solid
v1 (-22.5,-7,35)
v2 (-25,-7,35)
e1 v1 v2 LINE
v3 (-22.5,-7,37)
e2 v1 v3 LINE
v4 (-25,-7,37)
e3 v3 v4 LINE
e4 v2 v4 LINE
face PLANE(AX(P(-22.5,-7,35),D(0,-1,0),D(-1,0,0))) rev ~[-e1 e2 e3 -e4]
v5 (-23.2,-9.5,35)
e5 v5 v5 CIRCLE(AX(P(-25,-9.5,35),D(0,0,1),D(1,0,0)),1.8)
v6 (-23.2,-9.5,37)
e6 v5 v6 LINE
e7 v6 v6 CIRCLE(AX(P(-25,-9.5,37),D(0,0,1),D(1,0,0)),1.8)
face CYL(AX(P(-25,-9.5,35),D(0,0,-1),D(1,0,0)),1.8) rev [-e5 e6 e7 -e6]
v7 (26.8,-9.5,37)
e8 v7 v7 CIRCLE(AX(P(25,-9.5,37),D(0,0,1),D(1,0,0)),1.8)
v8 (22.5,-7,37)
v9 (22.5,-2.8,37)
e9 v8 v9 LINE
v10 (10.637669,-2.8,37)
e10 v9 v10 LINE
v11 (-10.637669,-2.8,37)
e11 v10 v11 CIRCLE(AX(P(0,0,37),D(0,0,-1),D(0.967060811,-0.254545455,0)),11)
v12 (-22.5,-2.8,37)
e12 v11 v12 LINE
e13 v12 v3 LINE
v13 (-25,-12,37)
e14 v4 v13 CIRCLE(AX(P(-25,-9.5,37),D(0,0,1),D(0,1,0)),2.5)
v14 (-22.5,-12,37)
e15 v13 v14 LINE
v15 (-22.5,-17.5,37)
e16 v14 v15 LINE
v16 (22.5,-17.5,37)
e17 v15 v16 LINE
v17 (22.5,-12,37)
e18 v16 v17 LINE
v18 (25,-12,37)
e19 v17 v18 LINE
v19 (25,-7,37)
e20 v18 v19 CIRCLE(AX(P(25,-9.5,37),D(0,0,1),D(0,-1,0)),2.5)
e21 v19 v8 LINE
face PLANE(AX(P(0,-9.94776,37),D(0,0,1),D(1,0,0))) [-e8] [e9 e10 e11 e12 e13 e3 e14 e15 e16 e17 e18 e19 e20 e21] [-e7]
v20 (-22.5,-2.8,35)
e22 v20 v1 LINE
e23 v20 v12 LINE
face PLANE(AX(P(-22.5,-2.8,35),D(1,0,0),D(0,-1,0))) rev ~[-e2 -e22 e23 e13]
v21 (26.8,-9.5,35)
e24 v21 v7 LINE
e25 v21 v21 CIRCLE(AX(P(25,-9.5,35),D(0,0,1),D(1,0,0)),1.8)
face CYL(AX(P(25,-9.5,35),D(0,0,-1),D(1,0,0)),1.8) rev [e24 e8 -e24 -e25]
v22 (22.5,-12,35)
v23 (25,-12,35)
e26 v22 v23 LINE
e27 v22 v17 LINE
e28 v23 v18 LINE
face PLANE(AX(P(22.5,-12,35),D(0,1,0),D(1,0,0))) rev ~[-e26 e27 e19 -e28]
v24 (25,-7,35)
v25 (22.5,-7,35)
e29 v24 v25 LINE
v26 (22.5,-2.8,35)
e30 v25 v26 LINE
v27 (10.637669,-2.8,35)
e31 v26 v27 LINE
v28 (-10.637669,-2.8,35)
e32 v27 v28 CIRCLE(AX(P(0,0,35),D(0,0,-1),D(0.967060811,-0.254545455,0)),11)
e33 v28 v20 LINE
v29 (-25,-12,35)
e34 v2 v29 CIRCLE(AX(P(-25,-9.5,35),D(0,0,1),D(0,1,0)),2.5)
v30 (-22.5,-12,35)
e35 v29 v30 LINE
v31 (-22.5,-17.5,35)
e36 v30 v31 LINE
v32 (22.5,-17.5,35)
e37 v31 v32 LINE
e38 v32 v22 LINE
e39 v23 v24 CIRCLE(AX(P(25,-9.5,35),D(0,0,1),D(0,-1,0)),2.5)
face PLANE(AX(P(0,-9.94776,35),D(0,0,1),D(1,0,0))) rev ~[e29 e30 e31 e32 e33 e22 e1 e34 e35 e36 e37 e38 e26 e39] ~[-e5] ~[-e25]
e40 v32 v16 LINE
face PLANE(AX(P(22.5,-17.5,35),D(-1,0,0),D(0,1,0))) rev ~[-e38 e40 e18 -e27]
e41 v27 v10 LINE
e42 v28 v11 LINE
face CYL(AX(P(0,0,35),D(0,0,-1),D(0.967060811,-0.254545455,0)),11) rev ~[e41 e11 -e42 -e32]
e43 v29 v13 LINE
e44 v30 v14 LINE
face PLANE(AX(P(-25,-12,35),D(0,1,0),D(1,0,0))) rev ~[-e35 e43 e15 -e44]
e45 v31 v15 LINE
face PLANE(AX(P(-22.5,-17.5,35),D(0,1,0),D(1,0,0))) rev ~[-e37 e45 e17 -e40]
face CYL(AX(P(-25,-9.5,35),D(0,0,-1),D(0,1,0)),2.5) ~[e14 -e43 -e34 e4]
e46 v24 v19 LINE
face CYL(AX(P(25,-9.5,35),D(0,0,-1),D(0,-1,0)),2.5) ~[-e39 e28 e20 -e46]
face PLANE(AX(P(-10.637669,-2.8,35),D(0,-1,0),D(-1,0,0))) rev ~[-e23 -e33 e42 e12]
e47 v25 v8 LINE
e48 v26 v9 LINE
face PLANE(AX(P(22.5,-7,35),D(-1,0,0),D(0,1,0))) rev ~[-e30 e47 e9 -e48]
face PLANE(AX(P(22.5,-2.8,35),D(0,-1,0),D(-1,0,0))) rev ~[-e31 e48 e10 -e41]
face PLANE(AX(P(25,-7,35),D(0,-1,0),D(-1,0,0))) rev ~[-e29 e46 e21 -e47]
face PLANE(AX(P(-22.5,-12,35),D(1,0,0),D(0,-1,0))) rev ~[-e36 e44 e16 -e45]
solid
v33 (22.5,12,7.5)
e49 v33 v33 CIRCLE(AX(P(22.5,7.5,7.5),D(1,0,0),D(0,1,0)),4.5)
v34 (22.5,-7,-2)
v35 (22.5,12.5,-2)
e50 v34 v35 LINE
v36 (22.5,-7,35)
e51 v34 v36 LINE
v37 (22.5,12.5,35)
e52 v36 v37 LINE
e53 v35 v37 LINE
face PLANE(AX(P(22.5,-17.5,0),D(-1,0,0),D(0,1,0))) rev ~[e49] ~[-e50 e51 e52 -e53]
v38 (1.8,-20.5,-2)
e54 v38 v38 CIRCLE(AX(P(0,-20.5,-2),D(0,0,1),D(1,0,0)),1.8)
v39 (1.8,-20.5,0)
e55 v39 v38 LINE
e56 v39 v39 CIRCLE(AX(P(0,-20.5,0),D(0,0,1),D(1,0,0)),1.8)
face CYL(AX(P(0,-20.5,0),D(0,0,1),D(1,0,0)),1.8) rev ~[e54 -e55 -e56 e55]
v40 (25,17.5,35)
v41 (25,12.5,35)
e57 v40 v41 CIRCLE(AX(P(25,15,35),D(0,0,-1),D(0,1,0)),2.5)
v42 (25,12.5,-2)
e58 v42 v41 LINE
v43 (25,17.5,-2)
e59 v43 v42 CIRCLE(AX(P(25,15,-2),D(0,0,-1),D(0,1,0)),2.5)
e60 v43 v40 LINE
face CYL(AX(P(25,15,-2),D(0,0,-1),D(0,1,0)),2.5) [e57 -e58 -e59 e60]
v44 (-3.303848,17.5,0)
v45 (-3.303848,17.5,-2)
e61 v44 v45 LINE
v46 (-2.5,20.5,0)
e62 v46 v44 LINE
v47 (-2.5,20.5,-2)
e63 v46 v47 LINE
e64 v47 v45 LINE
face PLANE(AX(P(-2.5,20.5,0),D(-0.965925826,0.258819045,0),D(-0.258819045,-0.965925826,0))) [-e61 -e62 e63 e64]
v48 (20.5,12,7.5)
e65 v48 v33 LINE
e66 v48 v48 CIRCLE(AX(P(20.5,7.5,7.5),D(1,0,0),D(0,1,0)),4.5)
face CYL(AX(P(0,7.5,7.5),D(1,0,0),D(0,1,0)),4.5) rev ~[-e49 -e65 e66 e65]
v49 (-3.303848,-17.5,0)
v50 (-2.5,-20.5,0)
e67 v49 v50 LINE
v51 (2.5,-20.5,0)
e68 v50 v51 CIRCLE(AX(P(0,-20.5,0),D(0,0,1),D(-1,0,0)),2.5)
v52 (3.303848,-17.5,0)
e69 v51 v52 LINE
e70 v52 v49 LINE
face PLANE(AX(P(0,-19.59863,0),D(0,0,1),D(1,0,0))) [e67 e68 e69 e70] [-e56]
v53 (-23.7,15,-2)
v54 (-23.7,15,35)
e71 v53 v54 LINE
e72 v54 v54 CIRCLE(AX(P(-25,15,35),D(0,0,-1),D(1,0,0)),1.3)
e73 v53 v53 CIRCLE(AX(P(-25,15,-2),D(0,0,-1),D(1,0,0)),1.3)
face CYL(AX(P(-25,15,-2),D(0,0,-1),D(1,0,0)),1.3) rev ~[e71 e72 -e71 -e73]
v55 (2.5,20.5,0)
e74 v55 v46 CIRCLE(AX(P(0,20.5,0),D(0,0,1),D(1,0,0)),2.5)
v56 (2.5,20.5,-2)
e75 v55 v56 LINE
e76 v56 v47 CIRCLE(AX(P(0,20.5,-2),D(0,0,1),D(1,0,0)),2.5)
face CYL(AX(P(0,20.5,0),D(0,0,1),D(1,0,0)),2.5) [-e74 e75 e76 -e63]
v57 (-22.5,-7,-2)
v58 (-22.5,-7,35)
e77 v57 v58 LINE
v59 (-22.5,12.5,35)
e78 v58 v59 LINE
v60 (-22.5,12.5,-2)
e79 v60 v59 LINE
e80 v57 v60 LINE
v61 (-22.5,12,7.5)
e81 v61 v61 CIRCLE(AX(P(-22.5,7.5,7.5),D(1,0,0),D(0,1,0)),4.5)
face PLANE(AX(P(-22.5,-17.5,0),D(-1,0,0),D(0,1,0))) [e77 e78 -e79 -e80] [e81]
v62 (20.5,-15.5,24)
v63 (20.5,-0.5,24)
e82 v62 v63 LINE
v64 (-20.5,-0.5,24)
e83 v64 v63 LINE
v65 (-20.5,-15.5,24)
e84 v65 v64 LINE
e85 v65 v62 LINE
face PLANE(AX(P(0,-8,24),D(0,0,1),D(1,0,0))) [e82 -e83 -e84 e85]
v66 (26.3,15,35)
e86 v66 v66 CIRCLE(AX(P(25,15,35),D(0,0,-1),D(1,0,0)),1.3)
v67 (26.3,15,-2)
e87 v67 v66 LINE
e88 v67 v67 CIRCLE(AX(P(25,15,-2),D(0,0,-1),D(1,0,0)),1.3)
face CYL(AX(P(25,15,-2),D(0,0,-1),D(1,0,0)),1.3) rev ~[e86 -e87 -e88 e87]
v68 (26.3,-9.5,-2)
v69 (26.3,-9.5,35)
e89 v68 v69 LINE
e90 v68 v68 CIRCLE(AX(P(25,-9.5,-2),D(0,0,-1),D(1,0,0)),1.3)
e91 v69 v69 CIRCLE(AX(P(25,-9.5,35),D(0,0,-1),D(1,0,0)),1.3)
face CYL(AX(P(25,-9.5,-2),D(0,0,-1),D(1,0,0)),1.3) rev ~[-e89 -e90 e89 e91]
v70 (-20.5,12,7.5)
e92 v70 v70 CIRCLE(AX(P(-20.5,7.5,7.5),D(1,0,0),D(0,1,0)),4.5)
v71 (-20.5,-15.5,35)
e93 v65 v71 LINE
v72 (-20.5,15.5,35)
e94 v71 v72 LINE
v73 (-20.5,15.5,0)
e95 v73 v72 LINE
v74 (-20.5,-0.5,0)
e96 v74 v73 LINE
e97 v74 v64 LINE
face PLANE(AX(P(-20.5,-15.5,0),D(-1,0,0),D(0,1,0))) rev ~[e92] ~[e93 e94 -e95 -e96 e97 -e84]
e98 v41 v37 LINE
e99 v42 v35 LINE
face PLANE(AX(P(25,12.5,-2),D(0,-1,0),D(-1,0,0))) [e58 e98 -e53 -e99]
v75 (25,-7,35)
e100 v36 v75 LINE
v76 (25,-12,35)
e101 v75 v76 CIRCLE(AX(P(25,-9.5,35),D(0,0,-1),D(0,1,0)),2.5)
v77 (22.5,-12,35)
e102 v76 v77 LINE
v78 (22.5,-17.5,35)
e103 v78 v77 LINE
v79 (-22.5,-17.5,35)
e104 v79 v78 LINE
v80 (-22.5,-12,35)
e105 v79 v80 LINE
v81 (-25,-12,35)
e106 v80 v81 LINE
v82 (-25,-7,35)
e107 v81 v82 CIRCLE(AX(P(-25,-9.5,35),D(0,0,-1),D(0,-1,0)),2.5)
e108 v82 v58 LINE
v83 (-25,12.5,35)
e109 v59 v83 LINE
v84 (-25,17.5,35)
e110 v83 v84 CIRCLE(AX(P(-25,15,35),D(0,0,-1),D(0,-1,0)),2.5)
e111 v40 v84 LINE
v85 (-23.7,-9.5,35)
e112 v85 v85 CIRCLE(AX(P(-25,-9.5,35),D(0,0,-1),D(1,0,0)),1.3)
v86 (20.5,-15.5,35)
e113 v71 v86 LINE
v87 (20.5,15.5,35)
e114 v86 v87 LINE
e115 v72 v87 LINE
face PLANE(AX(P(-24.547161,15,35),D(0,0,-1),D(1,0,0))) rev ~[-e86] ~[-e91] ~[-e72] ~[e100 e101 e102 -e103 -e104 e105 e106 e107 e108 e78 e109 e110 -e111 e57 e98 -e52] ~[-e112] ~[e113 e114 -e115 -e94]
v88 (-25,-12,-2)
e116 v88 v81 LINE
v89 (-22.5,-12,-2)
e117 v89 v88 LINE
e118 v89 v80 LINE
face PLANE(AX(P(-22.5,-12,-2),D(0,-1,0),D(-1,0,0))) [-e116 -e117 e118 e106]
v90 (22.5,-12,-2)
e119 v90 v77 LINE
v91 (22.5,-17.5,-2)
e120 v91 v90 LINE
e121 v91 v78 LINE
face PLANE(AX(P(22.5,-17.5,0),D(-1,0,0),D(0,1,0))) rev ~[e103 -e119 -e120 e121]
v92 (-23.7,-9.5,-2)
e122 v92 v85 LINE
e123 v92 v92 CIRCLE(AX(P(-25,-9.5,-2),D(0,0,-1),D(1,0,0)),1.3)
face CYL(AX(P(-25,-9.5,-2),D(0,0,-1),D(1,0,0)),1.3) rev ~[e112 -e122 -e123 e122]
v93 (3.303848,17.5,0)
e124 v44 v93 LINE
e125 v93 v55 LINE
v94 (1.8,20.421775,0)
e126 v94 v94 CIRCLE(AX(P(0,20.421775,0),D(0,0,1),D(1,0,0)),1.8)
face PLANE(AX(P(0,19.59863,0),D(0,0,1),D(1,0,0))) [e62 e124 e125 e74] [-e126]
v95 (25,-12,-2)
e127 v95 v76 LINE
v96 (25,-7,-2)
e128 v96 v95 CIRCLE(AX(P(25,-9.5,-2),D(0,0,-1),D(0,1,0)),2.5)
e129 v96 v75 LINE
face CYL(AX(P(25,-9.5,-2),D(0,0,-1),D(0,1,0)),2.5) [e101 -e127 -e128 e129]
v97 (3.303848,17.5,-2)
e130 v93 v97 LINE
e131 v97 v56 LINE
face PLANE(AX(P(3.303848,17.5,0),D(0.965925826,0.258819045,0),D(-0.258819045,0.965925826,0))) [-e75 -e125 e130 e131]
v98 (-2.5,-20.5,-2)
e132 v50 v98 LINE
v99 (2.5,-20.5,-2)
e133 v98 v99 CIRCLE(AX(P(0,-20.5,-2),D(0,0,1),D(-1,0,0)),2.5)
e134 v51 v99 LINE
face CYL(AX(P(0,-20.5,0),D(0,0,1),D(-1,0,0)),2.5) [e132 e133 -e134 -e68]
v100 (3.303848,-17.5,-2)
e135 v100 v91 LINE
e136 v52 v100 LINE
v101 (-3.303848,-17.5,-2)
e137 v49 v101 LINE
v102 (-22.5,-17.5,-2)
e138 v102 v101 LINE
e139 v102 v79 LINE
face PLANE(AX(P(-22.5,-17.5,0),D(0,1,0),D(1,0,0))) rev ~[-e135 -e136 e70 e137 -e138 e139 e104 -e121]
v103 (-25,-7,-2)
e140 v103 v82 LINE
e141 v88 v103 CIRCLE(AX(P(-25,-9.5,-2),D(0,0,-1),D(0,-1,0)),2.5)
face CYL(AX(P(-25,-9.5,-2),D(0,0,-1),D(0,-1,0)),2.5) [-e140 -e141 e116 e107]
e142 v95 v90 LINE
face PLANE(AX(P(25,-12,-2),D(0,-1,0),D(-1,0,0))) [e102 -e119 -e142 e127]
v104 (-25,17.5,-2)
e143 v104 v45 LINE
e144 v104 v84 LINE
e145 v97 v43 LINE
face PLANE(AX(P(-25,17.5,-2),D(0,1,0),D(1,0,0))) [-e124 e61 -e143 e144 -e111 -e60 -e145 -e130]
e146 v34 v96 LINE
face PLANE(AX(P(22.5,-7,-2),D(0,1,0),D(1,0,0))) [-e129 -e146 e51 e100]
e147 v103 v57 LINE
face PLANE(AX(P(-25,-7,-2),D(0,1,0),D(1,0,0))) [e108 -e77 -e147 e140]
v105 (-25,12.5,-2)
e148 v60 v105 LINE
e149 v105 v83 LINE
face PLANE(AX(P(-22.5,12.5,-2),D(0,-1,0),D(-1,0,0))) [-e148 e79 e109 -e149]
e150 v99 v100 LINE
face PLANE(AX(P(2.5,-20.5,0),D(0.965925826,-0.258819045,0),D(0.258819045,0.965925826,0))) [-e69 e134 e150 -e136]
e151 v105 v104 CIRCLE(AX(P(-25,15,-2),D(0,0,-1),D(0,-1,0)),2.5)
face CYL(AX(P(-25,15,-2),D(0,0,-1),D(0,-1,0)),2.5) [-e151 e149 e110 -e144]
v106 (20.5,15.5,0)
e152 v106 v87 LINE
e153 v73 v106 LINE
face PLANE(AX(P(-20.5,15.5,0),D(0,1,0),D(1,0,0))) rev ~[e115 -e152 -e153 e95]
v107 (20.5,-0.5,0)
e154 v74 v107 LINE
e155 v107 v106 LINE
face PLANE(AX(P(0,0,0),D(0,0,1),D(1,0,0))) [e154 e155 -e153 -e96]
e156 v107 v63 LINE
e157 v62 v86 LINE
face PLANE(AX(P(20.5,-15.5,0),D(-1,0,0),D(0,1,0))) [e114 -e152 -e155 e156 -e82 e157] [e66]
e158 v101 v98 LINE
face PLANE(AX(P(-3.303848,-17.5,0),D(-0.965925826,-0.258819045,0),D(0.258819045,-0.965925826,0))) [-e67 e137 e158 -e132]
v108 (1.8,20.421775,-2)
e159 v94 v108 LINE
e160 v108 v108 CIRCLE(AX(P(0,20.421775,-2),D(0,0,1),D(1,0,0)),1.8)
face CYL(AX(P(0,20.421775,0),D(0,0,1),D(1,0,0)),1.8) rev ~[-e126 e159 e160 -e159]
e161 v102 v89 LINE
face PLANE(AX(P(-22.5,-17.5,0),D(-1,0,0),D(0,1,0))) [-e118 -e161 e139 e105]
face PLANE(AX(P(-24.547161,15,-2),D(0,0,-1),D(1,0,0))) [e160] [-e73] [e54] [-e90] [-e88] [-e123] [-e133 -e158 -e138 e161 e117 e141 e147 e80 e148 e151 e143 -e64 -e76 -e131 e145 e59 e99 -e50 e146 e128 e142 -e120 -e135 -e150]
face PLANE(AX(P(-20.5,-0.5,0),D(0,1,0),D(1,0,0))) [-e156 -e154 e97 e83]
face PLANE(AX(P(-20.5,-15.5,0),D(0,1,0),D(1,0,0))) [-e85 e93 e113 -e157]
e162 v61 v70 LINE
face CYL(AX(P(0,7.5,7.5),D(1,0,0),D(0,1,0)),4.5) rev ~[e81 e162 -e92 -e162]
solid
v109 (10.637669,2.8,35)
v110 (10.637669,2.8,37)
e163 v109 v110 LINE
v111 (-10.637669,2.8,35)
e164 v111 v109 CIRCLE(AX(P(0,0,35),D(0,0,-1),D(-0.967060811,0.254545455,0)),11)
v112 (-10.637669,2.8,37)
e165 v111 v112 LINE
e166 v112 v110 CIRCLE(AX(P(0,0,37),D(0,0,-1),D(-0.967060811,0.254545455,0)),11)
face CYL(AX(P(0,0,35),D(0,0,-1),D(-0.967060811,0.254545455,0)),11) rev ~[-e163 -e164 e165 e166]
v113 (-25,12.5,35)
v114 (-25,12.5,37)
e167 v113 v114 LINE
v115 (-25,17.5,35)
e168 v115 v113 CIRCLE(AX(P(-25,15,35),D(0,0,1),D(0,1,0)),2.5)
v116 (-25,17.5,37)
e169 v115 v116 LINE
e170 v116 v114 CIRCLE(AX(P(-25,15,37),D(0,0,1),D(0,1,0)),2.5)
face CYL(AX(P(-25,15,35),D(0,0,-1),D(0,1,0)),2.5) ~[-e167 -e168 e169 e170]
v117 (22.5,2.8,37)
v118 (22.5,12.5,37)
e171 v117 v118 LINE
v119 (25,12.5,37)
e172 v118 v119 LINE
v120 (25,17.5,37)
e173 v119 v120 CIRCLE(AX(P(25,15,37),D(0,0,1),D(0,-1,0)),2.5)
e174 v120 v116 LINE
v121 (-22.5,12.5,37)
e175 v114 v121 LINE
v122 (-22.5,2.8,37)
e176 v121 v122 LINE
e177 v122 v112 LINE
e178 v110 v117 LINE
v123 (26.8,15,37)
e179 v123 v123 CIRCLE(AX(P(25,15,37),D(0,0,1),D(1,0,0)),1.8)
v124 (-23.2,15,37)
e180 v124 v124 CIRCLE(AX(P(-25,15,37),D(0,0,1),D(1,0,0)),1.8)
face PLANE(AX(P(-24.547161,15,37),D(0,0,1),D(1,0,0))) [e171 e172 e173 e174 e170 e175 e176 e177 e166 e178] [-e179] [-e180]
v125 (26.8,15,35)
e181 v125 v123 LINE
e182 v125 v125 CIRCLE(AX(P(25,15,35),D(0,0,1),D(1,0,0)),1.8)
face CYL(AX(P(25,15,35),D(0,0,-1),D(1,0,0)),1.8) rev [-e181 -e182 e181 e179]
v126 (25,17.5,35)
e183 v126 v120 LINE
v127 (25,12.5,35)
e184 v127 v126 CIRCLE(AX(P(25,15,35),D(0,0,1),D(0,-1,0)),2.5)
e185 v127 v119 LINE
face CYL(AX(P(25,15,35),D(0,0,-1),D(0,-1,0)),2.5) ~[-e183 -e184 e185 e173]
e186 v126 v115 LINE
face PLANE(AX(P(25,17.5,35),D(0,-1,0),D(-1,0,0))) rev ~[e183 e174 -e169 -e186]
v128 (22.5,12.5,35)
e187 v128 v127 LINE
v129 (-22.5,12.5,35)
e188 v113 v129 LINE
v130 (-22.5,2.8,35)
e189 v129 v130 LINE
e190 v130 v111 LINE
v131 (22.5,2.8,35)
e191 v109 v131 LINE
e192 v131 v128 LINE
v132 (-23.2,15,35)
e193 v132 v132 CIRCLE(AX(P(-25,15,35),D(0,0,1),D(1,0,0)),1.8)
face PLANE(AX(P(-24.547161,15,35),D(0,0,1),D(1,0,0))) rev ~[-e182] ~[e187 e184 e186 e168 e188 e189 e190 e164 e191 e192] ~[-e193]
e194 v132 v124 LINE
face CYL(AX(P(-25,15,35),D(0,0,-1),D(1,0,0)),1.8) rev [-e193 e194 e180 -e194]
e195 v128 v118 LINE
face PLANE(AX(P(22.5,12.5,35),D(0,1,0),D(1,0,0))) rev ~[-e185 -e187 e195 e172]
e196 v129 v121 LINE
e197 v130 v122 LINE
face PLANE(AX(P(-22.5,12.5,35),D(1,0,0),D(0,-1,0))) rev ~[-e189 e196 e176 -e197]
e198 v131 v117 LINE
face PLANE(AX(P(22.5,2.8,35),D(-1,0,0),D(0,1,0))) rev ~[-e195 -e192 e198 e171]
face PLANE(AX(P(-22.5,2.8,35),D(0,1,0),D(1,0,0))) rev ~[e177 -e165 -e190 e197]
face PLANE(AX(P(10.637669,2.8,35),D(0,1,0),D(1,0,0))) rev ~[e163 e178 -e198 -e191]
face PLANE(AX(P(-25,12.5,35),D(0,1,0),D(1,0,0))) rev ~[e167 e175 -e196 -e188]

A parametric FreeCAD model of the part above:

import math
import FreeCAD as App
import Part
import Sketcher

V = App.Vector
Q = App.Units.Quantity


def add_polygon(sketch, points):
    """Adds a closed chain of lines whose ends are joined by coincident constraints."""
    first, n = sketch.GeometryCount, len(points)
    for a, b in zip(points, points[1:] + points[:1]):
        sketch.addGeometry(Part.LineSegment(App.Vector(*a, 0), App.Vector(*b, 0)), False)
    for i in range(n):
        sketch.addConstraint(Sketcher.Constraint("Coincident", first + i, 2, first + (i + 1) % n, 1))

doc = App.newDocument("Part")
body = doc.addObject("PartDesign::Body", "Body")

# Sketch on XY plane
sketch1 = doc.addObject("Sketcher::SketchObject", "Sketch")
body.addObject(sketch1)
sketch1.AttachmentSupport = (doc.XY_Plane, [""])
sketch1.MapMode = "FlatFace"
add_polygon(sketch1, [(-22, 18), (-22, -18), (22, -18), (22, 18)])  # lines 0-3
sketch1.addConstraint(Sketcher.Constraint("Vertical", 0))
sketch1.addConstraint(Sketcher.Constraint("Horizontal", 1))
sketch1.addConstraint(Sketcher.Constraint("Vertical", 2))
sketch1.addConstraint(Sketcher.Constraint("Horizontal", 3))
sketch1.addConstraint(Sketcher.Constraint("Symmetric", 0, 2, 2, 2, -1, 1))
sketch1.addConstraint(Sketcher.Constraint("DistanceX", 1, 1, 1, 2, 45.0))
sketch1.addConstraint(Sketcher.Constraint("DistanceY", 0, 2, 0, 1, 35.0))
pad1 = doc.addObject("PartDesign::Pad", "Pad")
body.addObject(pad1)
pad1.Profile = sketch1
pad1.Length = 2
pad1.Reversed = True

# Sketch on XY plane
sketch2 = doc.addObject("Sketcher::SketchObject", "Sketch001")
body.addObject(sketch2)
sketch2.AttachmentSupport = (doc.XY_Plane, [""])
sketch2.MapMode = "FlatFace"
add_polygon(sketch2, [(-22, 18), (-22, -18), (22, -18), (22, 18)])  # lines 0-3
add_polygon(sketch2, [(20, -16), (-20, -16), (-20, 16), (20, 16)])  # lines 4-7
sketch2.addConstraint(Sketcher.Constraint("Vertical", 0))
sketch2.addConstraint(Sketcher.Constraint("Horizontal", 1))
sketch2.addConstraint(Sketcher.Constraint("Vertical", 2))
sketch2.addConstraint(Sketcher.Constraint("Horizontal", 3))
sketch2.addConstraint(Sketcher.Constraint("Horizontal", 4))
sketch2.addConstraint(Sketcher.Constraint("Vertical", 5))
sketch2.addConstraint(Sketcher.Constraint("Horizontal", 6))
sketch2.addConstraint(Sketcher.Constraint("Vertical", 7))
sketch2.addConstraint(Sketcher.Constraint("Symmetric", 0, 2, 2, 2, -1, 1))
sketch2.addConstraint(Sketcher.Constraint("Symmetric", 4, 2, 6, 2, -1, 1))
sketch2.addConstraint(Sketcher.Constraint("DistanceX", 1, 1, 1, 2, 45.0))
sketch2.addConstraint(Sketcher.Constraint("DistanceX", 4, 2, 4, 1, 41.0))
sketch2.addConstraint(Sketcher.Constraint("DistanceY", 0, 2, 0, 1, 35.0))
sketch2.addConstraint(Sketcher.Constraint("DistanceY", 5, 1, 5, 2, 31.0))
pad2 = doc.addObject("PartDesign::Pad", "Pad001")
body.addObject(pad2)
pad2.Profile = sketch2
pad2.Length = 35

# Sketch on XY plane
sketch3 = doc.addObject("Sketcher::SketchObject", "Sketch002")
body.addObject(sketch3)
sketch3.AttachmentSupport = (doc.XY_Plane, [""])
sketch3.MapMode = "FlatFace"
add_polygon(sketch3, [(-20, 0), (-20, -16), (20, -16), (20, 0)])  # lines 0-3
sketch3.addConstraint(Sketcher.Constraint("Vertical", 0))
sketch3.addConstraint(Sketcher.Constraint("Horizontal", 1))
sketch3.addConstraint(Sketcher.Constraint("Vertical", 2))
sketch3.addConstraint(Sketcher.Constraint("Horizontal", 3))
sketch3.addConstraint(Sketcher.Constraint("DistanceX", 1, 1, 1, 2, 41.0))
sketch3.addConstraint(Sketcher.Constraint("DistanceY", 0, 2, 0, 1, 15.0))
sketch3.addConstraint(Sketcher.Constraint("DistanceX", 0, 2, -1, 1, 20.5))
sketch3.addConstraint(Sketcher.Constraint("DistanceY", 0, 2, -1, 1, 15.5))
pad3 = doc.addObject("PartDesign::Pad", "Pad002")
body.addObject(pad3)
pad3.Profile = sketch3
pad3.Length = 24

# Sketch on YZ plane
sketch4 = doc.addObject("Sketcher::SketchObject", "Sketch003")
body.addObject(sketch4)
sketch4.AttachmentSupport = (doc.YZ_Plane, [""])
sketch4.MapMode = "FlatFace"
sketch4.addGeometry(Part.Circle(V(7.5, 7.5, 0), V(0, 0, 1), 4.5), False)
sketch4.addConstraint(Sketcher.Constraint("Diameter", 0, 9.0))
sketch4.addConstraint(Sketcher.Constraint("DistanceX", -1, 1, 0, 3, 7.5))
sketch4.addConstraint(Sketcher.Constraint("DistanceY", -1, 1, 0, 3, 7.5))
pocket1 = doc.addObject("PartDesign::Pocket", "Pocket")
body.addObject(pocket1)
pocket1.Profile = sketch4
pocket1.Length = 50
pocket1.Midplane = True

# Sketch on XY plane
sketch5 = doc.addObject("Sketcher::SketchObject", "Sketch004")
body.addObject(sketch5)
sketch5.AttachmentSupport = (doc.XY_Plane, [""])
sketch5.MapMode = "FlatFace"
sketch5.addGeometry(Part.LineSegment(V(-3.3, -17.5, 0), V(-2.5, -20.5, 0)), False)
sketch5.addGeometry(Part.ArcOfCircle(Part.Circle(V(0, -20.5, 0), V(0, 0, 1), 2.5), math.radians(180), math.radians(360)), False)
sketch5.addGeometry(Part.LineSegment(V(2.5, -20.5, 0), V(3.3, -17.5, 0)), False)
sketch5.addGeometry(Part.LineSegment(V(3.3, -17.5, 0), V(-3.3, -17.5, 0)), False)
sketch5.addGeometry(Part.Circle(V(0, -20.5, 0), V(0, 0, 1), 1.8), False)
sketch5.addGeometry(Part.LineSegment(V(3.3, 17.5, 0), V(2.5, 20.5, 0)), False)
sketch5.addGeometry(Part.ArcOfCircle(Part.Circle(V(0, 20.5, 0), V(0, 0, 1), 2.5), math.radians(0), math.radians(180)), False)
sketch5.addGeometry(Part.LineSegment(V(-2.5, 20.5, 0), V(-3.3, 17.5, 0)), False)
sketch5.addGeometry(Part.LineSegment(V(-3.3, 17.5, 0), V(3.3, 17.5, 0)), False)
sketch5.addGeometry(Part.Circle(V(0, 20.4, 0), V(0, 0, 1), 1.8), False)
sketch5.addConstraint(Sketcher.Constraint("Coincident", 0, 2, 1, 1))
sketch5.addConstraint(Sketcher.Constraint("Coincident", 1, 2, 2, 1))
sketch5.addConstraint(Sketcher.Constraint("Coincident", 2, 2, 3, 1))
sketch5.addConstraint(Sketcher.Constraint("Coincident", 3, 2, 0, 1))
sketch5.addConstraint(Sketcher.Constraint("Coincident", 5, 2, 6, 1))
sketch5.addConstraint(Sketcher.Constraint("Coincident", 6, 2, 7, 1))
sketch5.addConstraint(Sketcher.Constraint("Coincident", 7, 2, 8, 1))
sketch5.addConstraint(Sketcher.Constraint("Coincident", 8, 2, 5, 1))
sketch5.addConstraint(Sketcher.Constraint("Horizontal", 3))
sketch5.addConstraint(Sketcher.Constraint("Horizontal", 8))
sketch5.addConstraint(Sketcher.Constraint("Coincident", 4, 3, 1, 3))
sketch5.addConstraint(Sketcher.Constraint("Equal", 1, 6))
sketch5.addConstraint(Sketcher.Constraint("Equal", 4, 9))
sketch5.addConstraint(Sketcher.Constraint("Symmetric", 1, 3, 6, 3, -1, 1))
sketch5.addConstraint(Sketcher.Constraint("Symmetric", 2, 2, 7, 2, -1, 1))
sketch5.addConstraint(Sketcher.Constraint("Symmetric", 0, 2, 1, 2, -2))
sketch5.addConstraint(Sketcher.Constraint("PointOnObject", 9, 3, -2))
sketch5.addConstraint(Sketcher.Constraint("Parallel", 0, 5))
sketch5.addConstraint(Sketcher.Constraint("Parallel", 2, 7))
sketch5.addConstraint(Sketcher.Constraint("Horizontal", 4, 3, 0, 2))
sketch5.addConstraint(Sketcher.Constraint("Horizontal", 6, 3, 5, 2))
sketch5.addConstraint(Sketcher.Constraint("Vertical", 3, 2, 7, 2))
sketch5.addConstraint(Sketcher.Constraint("Diameter", 4, 3.6))
sketch5.addConstraint(Sketcher.Constraint("Radius", 1, 2.5))
sketch5.addConstraint(Sketcher.Constraint("Angle", 0, Q("-75 deg")))
sketch5.addConstraint(Sketcher.Constraint("DistanceY", 1, 3, 6, 3, 41.0))
sketch5.addConstraint(Sketcher.Constraint("DistanceY", 1, 2, 2, 2, 3.0))
sketch5.addConstraint(Sketcher.Constraint("DistanceY", -1, 1, 9, 3, 20.421775))
pad4 = doc.addObject("PartDesign::Pad", "Pad003")
body.addObject(pad4)
pad4.Profile = sketch5
pad4.Length = 2
pad4.Reversed = True

# Sketch on XY plane
sketch6 = doc.addObject("Sketcher::SketchObject", "Sketch005")
body.addObject(sketch6)
sketch6.AttachmentSupport = (doc.XY_Plane, [""])
sketch6.MapMode = "FlatFace"
sketch6.AttachmentOffset = App.Placement(V(0, 0, -2), App.Rotation())
sketch6.addGeometry(Part.LineSegment(V(-22.5, 12.5, 0), V(-25, 12.5, 0)), False)
sketch6.addGeometry(Part.ArcOfCircle(Part.Circle(V(-25, 15, 0), V(0, 0, 1), 2.5), math.radians(90), math.radians(270)), False)
sketch6.addGeometry(Part.LineSegment(V(-25, 17.5, 0), V(-22.5, 17.5, 0)), False)
sketch6.addGeometry(Part.LineSegment(V(-22.5, 17.5, 0), V(-22.5, 12.5, 0)), False)
sketch6.addGeometry(Part.Circle(V(-25, 15, 0), V(0, 0, 1), 1.3), False)
sketch6.addGeometry(Part.LineSegment(V(22.5, 12.5, 0), V(22.5, 17.5, 0)), False)
sketch6.addGeometry(Part.LineSegment(V(22.5, 17.5, 0), V(25, 17.5, 0)), False)
sketch6.addGeometry(Part.ArcOfCircle(Part.Circle(V(25, 15, 0), V(0, 0, 1), 2.5), math.radians(-90), math.radians(90)), False)
sketch6.addGeometry(Part.LineSegment(V(25, 12.5, 0), V(22.5, 12.5, 0)), False)
sketch6.addGeometry(Part.Circle(V(25, 15, 0), V(0, 0, 1), 1.3), False)
sketch6.addGeometry(Part.LineSegment(V(22.5, -12, 0), V(22.5, -7, 0)), False)
sketch6.addGeometry(Part.LineSegment(V(22.5, -7, 0), V(25, -7, 0)), False)
sketch6.addGeometry(Part.ArcOfCircle(Part.Circle(V(25, -9.5, 0), V(0, 0, 1), 2.5), math.radians(-90), math.radians(90)), False)
sketch6.addGeometry(Part.LineSegment(V(25, -12, 0), V(22.5, -12, 0)), False)
sketch6.addGeometry(Part.Circle(V(25, -9.5, 0), V(0, 0, 1), 1.3), False)
sketch6.addGeometry(Part.LineSegment(V(-25, -7, 0), V(-22.5, -7, 0)), False)
sketch6.addGeometry(Part.LineSegment(V(-22.5, -7, 0), V(-22.5, -12, 0)), False)
sketch6.addGeometry(Part.LineSegment(V(-22.5, -12, 0), V(-25, -12, 0)), False)
sketch6.addGeometry(Part.ArcOfCircle(Part.Circle(V(-25, -9.5, 0), V(0, 0, 1), 2.5), math.radians(90), math.radians(270)), False)
sketch6.addGeometry(Part.Circle(V(-25, -9.5, 0), V(0, 0, 1), 1.3), False)
sketch6.addConstraint(Sketcher.Constraint("Tangent", 0, 2, 1, 2))
sketch6.addConstraint(Sketcher.Constraint("Tangent", 1, 1, 2, 1))
sketch6.addConstraint(Sketcher.Constraint("Coincident", 2, 2, 3, 1))
sketch6.addConstraint(Sketcher.Constraint("Coincident", 3, 2, 0, 1))
sketch6.addConstraint(Sketcher.Constraint("Coincident", 5, 2, 6, 1))
sketch6.addConstraint(Sketcher.Constraint("Tangent", 6, 2, 7, 2))
sketch6.addConstraint(Sketcher.Constraint("Tangent", 7, 1, 8, 1))
sketch6.addConstraint(Sketcher.Constraint("Coincident", 8, 2, 5, 1))
sketch6.addConstraint(Sketcher.Constraint("Coincident", 10, 2, 11, 1))
sketch6.addConstraint(Sketcher.Constraint("Tangent", 11, 2, 12, 2))
sketch6.addConstraint(Sketcher.Constraint("Tangent", 12, 1, 13, 1))
sketch6.addConstraint(Sketcher.Constraint("Coincident", 13, 2, 10, 1))
sketch6.addConstraint(Sketcher.Constraint("Coincident", 15, 2, 16, 1))
sketch6.addConstraint(Sketcher.Constraint("Coincident", 16, 2, 17, 1))
sketch6.addConstraint(Sketcher.Constraint("Tangent", 17, 2, 18, 2))
sketch6.addConstraint(Sketcher.Constraint("Tangent", 18, 1, 15, 1))
sketch6.addConstraint(Sketcher.Constraint("Horizontal", 0))
sketch6.addConstraint(Sketcher.Constraint("Horizontal", 2))
sketch6.addConstraint(Sketcher.Constraint("Vertical", 3))
sketch6.addConstraint(Sketcher.Constraint("Vertical", 5))
sketch6.addConstraint(Sketcher.Constraint("Horizontal", 6))
sketch6.addConstraint(Sketcher.Constraint("Horizontal", 8))
sketch6.addConstraint(Sketcher.Constraint("Vertical", 10))
sketch6.addConstraint(Sketcher.Constraint("Horizontal", 11))
sketch6.addConstraint(Sketcher.Constraint("Horizontal", 13))
sketch6.addConstraint(Sketcher.Constraint("Horizontal", 15))
sketch6.addConstraint(Sketcher.Constraint("Vertical", 16))
sketch6.addConstraint(Sketcher.Constraint("Horizontal", 17))
sketch6.addConstraint(Sketcher.Constraint("Coincident", 4, 3, 1, 3))
sketch6.addConstraint(Sketcher.Constraint("Coincident", 9, 3, 7, 3))
sketch6.addConstraint(Sketcher.Constraint("Coincident", 14, 3, 12, 3))
sketch6.addConstraint(Sketcher.Constraint("Coincident", 19, 3, 18, 3))
sketch6.addConstraint(Sketcher.Constraint("Equal", 1, 7))
sketch6.addConstraint(Sketcher.Constraint("Equal", 4, 9))
sketch6.addConstraint(Sketcher.Constraint("Equal", 7, 12))
sketch6.addConstraint(Sketcher.Constraint("Equal", 9, 14))
sketch6.addConstraint(Sketcher.Constraint("Equal", 12, 18))
sketch6.addConstraint(Sketcher.Constraint("Equal", 14, 19))
sketch6.addConstraint(Sketcher.Constraint("Symmetric", 1, 3, 7, 3, -2))
sketch6.addConstraint(Sketcher.Constraint("Symmetric", 12, 3, 18, 3, -2))
sketch6.addConstraint(Sketcher.Constraint("Vertical", 9, 3, 12, 3))
sketch6.addConstraint(Sketcher.Constraint("Vertical", 8, 2, 10, 2))
sketch6.addConstraint(Sketcher.Constraint("Vertical", 3, 2, 15, 2))
sketch6.addConstraint(Sketcher.Constraint("Equal", 2, 6))
sketch6.addConstraint(Sketcher.Constraint("Diameter", 4, 2.6))
sketch6.addConstraint(Sketcher.Constraint("Radius", 1, 2.5))
sketch6.addConstraint(Sketcher.Constraint("DistanceX", 0, 2, 0, 1, 2.5))
sketch6.addConstraint(Sketcher.Constraint("DistanceX", 1, 3, -1, 1, 25.0))
sketch6.addConstraint(Sketcher.Constraint("DistanceY", -1, 1, 1, 3, 15.0))
sketch6.addConstraint(Sketcher.Constraint("DistanceY", 10, 2, -1, 1, 7.0))
pad5 = doc.addObject("PartDesign::Pad", "Pad004")
body.addObject(pad5)
pad5.Profile = sketch6
pad5.Length = 37
body2 = doc.addObject("PartDesign::Body", "Body001")

# Sketch on XY plane
sketch7 = doc.addObject("Sketcher::SketchObject", "Sketch006")
body2.addObject(sketch7)
sketch7.AttachmentSupport = (doc.getObject("XY_Plane001"), [""])
sketch7.MapMode = "FlatFace"
sketch7.AttachmentOffset = App.Placement(V(0, 0, 35), App.Rotation())
sketch7.addGeometry(Part.LineSegment(V(-25, 12.5, 0), V(-22.5, 12.5, 0)), False)
sketch7.addGeometry(Part.LineSegment(V(-22.5, 12.5, 0), V(-22.5, 2.8, 0)), False)
sketch7.addGeometry(Part.LineSegment(V(-22.5, 2.8, 0), V(-10.6, 2.8, 0)), False)
sketch7.addGeometry(Part.ArcOfCircle(Part.Circle(V(0, 0, 0), V(0, 0, 1), 11), math.radians(15), math.radians(165)), False)
sketch7.addGeometry(Part.LineSegment(V(10.6, 2.8, 0), V(22.5, 2.8, 0)), False)
sketch7.addGeometry(Part.LineSegment(V(22.5, 2.8, 0), V(22.5, 12.5, 0)), False)
sketch7.addGeometry(Part.LineSegment(V(22.5, 12.5, 0), V(25, 12.5, 0)), False)
sketch7.addGeometry(Part.ArcOfCircle(Part.Circle(V(25, 15, 0), V(0, 0, 1), 2.5), math.radians(-90), math.radians(90)), False)
sketch7.addGeometry(Part.LineSegment(V(25, 17.5, 0), V(-25, 17.5, 0)), False)
sketch7.addGeometry(Part.ArcOfCircle(Part.Circle(V(-25, 15, 0), V(0, 0, 1), 2.5), math.radians(90), math.radians(270)), False)
sketch7.addGeometry(Part.Circle(V(-25, 15, 0), V(0, 0, 1), 1.8), False)
sketch7.addGeometry(Part.Circle(V(25, 15, 0), V(0, 0, 1), 1.8), False)
sketch7.addConstraint(Sketcher.Constraint("Coincident", 0, 2, 1, 1))
sketch7.addConstraint(Sketcher.Constraint("Coincident", 1, 2, 2, 1))
sketch7.addConstraint(Sketcher.Constraint("Coincident", 2, 2, 3, 2))
sketch7.addConstraint(Sketcher.Constraint("Coincident", 3, 1, 4, 1))
sketch7.addConstraint(Sketcher.Constraint("Coincident", 4, 2, 5, 1))
sketch7.addConstraint(Sketcher.Constraint("Coincident", 5, 2, 6, 1))
sketch7.addConstraint(Sketcher.Constraint("Tangent", 6, 2, 7, 1))
sketch7.addConstraint(Sketcher.Constraint("Tangent", 7, 2, 8, 1))
sketch7.addConstraint(Sketcher.Constraint("Tangent", 8, 2, 9, 1))
sketch7.addConstraint(Sketcher.Constraint("Tangent", 9, 2, 0, 1))
sketch7.addConstraint(Sketcher.Constraint("Horizontal", 0))
sketch7.addConstraint(Sketcher.Constraint("Vertical", 1))
sketch7.addConstraint(Sketcher.Constraint("Horizontal", 2))
sketch7.addConstraint(Sketcher.Constraint("Horizontal", 4))
sketch7.addConstraint(Sketcher.Constraint("Vertical", 5))
sketch7.addConstraint(Sketcher.Constraint("Horizontal", 6))
sketch7.addConstraint(Sketcher.Constraint("Horizontal", 8))
sketch7.addConstraint(Sketcher.Constraint("Coincident", 3, 3, -1, 1))
sketch7.addConstraint(Sketcher.Constraint("Coincident", 10, 3, 9, 3))
sketch7.addConstraint(Sketcher.Constraint("Coincident", 11, 3, 7, 3))
sketch7.addConstraint(Sketcher.Constraint("Equal", 7, 9))
sketch7.addConstraint(Sketcher.Constraint("Equal", 10, 11))
sketch7.addConstraint(Sketcher.Constraint("Symmetric", 1, 2, 4, 2, -2))
sketch7.addConstraint(Sketcher.Constraint("Equal", 0, 6))
sketch7.addConstraint(Sketcher.Constraint("Radius", 3, 11.0))
sketch7.addConstraint(Sketcher.Constraint("Diameter", 10, 3.6))
sketch7.addConstraint(Sketcher.Constraint("Radius", 7, 2.5))
sketch7.addConstraint(Sketcher.Constraint("DistanceX", 8, 2, 8, 1, 50.0))
sketch7.addConstraint(Sketcher.Constraint("DistanceX", 0, 1, 0, 2, 2.5))
sketch7.addConstraint(Sketcher.Constraint("DistanceY", 1, 2, 1, 1, 9.7))
sketch7.addConstraint(Sketcher.Constraint("DistanceY", -1, 1, 7, 3, 15.0))
pad6 = doc.addObject("PartDesign::Pad", "Pad005")
body2.addObject(pad6)
pad6.Profile = sketch7
pad6.Length = 2
body3 = doc.addObject("PartDesign::Body", "Body002")

# Sketch on XY plane
sketch8 = doc.addObject("Sketcher::SketchObject", "Sketch007")
body3.addObject(sketch8)
sketch8.AttachmentSupport = (doc.getObject("XY_Plane002"), [""])
sketch8.MapMode = "FlatFace"
sketch8.AttachmentOffset = App.Placement(V(0, 0, 35), App.Rotation())
sketch8.addGeometry(Part.LineSegment(V(-10.6, -2.8, 0), V(-22.5, -2.8, 0)), False)
sketch8.addGeometry(Part.LineSegment(V(-22.5, -2.8, 0), V(-22.5, -7, 0)), False)
sketch8.addGeometry(Part.LineSegment(V(-22.5, -7, 0), V(-25, -7, 0)), False)
sketch8.addGeometry(Part.ArcOfCircle(Part.Circle(V(-25, -9.5, 0), V(0, 0, 1), 2.5), math.radians(90), math.radians(270)), False)
sketch8.addGeometry(Part.LineSegment(V(-25, -12, 0), V(-22.5, -12, 0)), False)
sketch8.addGeometry(Part.LineSegment(V(-22.5, -12, 0), V(-22.5, -17.5, 0)), False)
sketch8.addGeometry(Part.LineSegment(V(-22.5, -17.5, 0), V(22.5, -17.5, 0)), False)
sketch8.addGeometry(Part.LineSegment(V(22.5, -17.5, 0), V(22.5, -12, 0)), False)
sketch8.addGeometry(Part.LineSegment(V(22.5, -12, 0), V(25, -12, 0)), False)
sketch8.addGeometry(Part.ArcOfCircle(Part.Circle(V(25, -9.5, 0), V(0, 0, 1), 2.5), math.radians(-90), math.radians(90)), False)
sketch8.addGeometry(Part.LineSegment(V(25, -7, 0), V(22.5, -7, 0)), False)
sketch8.addGeometry(Part.LineSegment(V(22.5, -7, 0), V(22.5, -2.8, 0)), False)
sketch8.addGeometry(Part.LineSegment(V(22.5, -2.8, 0), V(10.6, -2.8, 0)), False)
sketch8.addGeometry(Part.ArcOfCircle(Part.Circle(V(0, 0, 0), V(0, 0, 1), 11), math.radians(-165), math.radians(-15)), False)
sketch8.addGeometry(Part.Circle(V(-25, -9.5, 0), V(0, 0, 1), 1.8), False)
sketch8.addGeometry(Part.Circle(V(25, -9.5, 0), V(0, 0, 1), 1.8), False)
sketch8.addConstraint(Sketcher.Constraint("Coincident", 0, 2, 1, 1))
sketch8.addConstraint(Sketcher.Constraint("Coincident", 1, 2, 2, 1))
sketch8.addConstraint(Sketcher.Constraint("Tangent", 2, 2, 3, 1))
sketch8.addConstraint(Sketcher.Constraint("Tangent", 3, 2, 4, 1))
sketch8.addConstraint(Sketcher.Constraint("Coincident", 4, 2, 5, 1))
sketch8.addConstraint(Sketcher.Constraint("Coincident", 5, 2, 6, 1))
sketch8.addConstraint(Sketcher.Constraint("Coincident", 6, 2, 7, 1))
sketch8.addConstraint(Sketcher.Constraint("Coincident", 7, 2, 8, 1))
sketch8.addConstraint(Sketcher.Constraint("Tangent", 8, 2, 9, 1))
sketch8.addConstraint(Sketcher.Constraint("Tangent", 9, 2, 10, 1))
sketch8.addConstraint(Sketcher.Constraint("Coincident", 10, 2, 11, 1))
sketch8.addConstraint(Sketcher.Constraint("Coincident", 11, 2, 12, 1))
sketch8.addConstraint(Sketcher.Constraint("Coincident", 12, 2, 13, 2))
sketch8.addConstraint(Sketcher.Constraint("Coincident", 13, 1, 0, 1))
sketch8.addConstraint(Sketcher.Constraint("Horizontal", 0))
sketch8.addConstraint(Sketcher.Constraint("Vertical", 1))
sketch8.addConstraint(Sketcher.Constraint("Horizontal", 2))
sketch8.addConstraint(Sketcher.Constraint("Horizontal", 4))
sketch8.addConstraint(Sketcher.Constraint("Vertical", 5))
sketch8.addConstraint(Sketcher.Constraint("Horizontal", 6))
sketch8.addConstraint(Sketcher.Constraint("Vertical", 7))
sketch8.addConstraint(Sketcher.Constraint("Horizontal", 8))
sketch8.addConstraint(Sketcher.Constraint("Horizontal", 10))
sketch8.addConstraint(Sketcher.Constraint("Vertical", 11))
sketch8.addConstraint(Sketcher.Constraint("Horizontal", 12))
sketch8.addConstraint(Sketcher.Constraint("Coincident", 13, 3, -1, 1))
sketch8.addConstraint(Sketcher.Constraint("Coincident", 14, 3, 3, 3))
sketch8.addConstraint(Sketcher.Constraint("Coincident", 15, 3, 9, 3))
sketch8.addConstraint(Sketcher.Constraint("Equal", 3, 9))
sketch8.addConstraint(Sketcher.Constraint("Equal", 14, 15))
sketch8.addConstraint(Sketcher.Constraint("Symmetric", 3, 3, 9, 3, -2))
sketch8.addConstraint(Sketcher.Constraint("Symmetric", 0, 2, 11, 2, -2))
sketch8.addConstraint(Sketcher.Constraint("Vertical", 1, 2, 4, 2))
sketch8.addConstraint(Sketcher.Constraint("Vertical", 7, 2, 10, 2))
sketch8.addConstraint(Sketcher.Constraint("Radius", 13, 11.0))
sketch8.addConstraint(Sketcher.Constraint("Diameter", 14, 3.6))
sketch8.addConstraint(Sketcher.Constraint("Radius", 3, 2.5))
sketch8.addConstraint(Sketcher.Constraint("DistanceX", 6, 1, 6, 2, 45.0))
sketch8.addConstraint(Sketcher.Constraint("DistanceX", 2, 2, 2, 1, 2.5))
sketch8.addConstraint(Sketcher.Constraint("DistanceY", 1, 2, 1, 1, 4.2))
sketch8.addConstraint(Sketcher.Constraint("DistanceY", 5, 2, 5, 1, 5.5))
sketch8.addConstraint(Sketcher.Constraint("DistanceY", 1, 2, -1, 1, 7.0))
pad7 = doc.addObject("PartDesign::Pad", "Pad006")
body3.addObject(pad7)
pad7.Profile = sketch8
pad7.Length = 2

doc.recompute()
